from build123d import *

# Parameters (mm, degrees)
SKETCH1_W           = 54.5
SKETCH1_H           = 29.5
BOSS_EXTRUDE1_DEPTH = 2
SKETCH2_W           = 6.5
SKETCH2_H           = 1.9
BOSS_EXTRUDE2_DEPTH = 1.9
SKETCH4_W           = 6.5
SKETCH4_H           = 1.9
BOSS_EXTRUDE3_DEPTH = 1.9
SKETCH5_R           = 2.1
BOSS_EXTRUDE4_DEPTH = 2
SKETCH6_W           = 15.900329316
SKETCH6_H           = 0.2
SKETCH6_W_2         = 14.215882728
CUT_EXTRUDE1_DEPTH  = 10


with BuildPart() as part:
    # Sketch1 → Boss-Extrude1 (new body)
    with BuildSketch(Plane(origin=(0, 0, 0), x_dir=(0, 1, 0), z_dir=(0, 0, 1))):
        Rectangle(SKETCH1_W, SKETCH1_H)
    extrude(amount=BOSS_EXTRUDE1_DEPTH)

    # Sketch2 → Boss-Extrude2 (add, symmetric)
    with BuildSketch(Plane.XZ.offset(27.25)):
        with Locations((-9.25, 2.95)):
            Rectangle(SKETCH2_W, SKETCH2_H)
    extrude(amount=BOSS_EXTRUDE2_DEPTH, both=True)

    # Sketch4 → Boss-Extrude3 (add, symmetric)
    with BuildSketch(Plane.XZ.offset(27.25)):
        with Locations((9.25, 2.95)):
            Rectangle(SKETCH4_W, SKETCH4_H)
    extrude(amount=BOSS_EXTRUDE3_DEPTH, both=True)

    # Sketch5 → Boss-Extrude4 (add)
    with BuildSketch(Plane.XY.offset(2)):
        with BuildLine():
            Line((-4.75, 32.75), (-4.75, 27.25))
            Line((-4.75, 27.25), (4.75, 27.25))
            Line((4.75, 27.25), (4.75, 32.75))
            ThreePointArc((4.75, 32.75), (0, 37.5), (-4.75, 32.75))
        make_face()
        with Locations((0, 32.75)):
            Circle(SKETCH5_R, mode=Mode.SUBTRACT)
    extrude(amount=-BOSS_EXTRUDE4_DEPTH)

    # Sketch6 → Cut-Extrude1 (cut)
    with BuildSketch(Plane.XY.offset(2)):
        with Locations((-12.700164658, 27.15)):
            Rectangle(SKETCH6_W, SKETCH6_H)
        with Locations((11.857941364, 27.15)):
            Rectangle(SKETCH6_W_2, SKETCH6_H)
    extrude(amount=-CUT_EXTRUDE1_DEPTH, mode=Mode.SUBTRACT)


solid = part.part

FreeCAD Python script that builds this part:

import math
import FreeCAD as App
import Part
import Sketcher
Q = App.Units.Quantity

doc = App.newDocument("Part")
body = doc.addObject("PartDesign::Body", "Body")

# Sketch on XY plane
sketch1 = doc.addObject("Sketcher::SketchObject", "Sketch")
body.addObject(sketch1)
sketch1.AttachmentSupport = (doc.XY_Plane, [""])
sketch1.MapMode = "FlatFace"
sketch1.addGeometry([
    Part.LineSegment(App.Vector(-14.75, -27.25, 0), App.Vector(14.75, -27.25, 0)),
    Part.LineSegment(App.Vector(14.75, -27.25, 0), App.Vector(14.75, 27.25, 0)),
    Part.LineSegment(App.Vector(14.75, 27.25, 0), App.Vector(-14.75, 27.25, 0)),
    Part.LineSegment(App.Vector(-14.75, 27.25, 0), App.Vector(-14.75, -27.25, 0)),
], False)
sketch1.addConstraint([
    Sketcher.Constraint("Coincident", 0, 2, 1, 1),
    Sketcher.Constraint("Coincident", 1, 2, 2, 1),
    Sketcher.Constraint("Coincident", 2, 2, 3, 1),
    Sketcher.Constraint("Coincident", 3, 2, 0, 1),
    Sketcher.Constraint("Horizontal", 0),
    Sketcher.Constraint("Vertical", 1),
    Sketcher.Constraint("Horizontal", 2),
    Sketcher.Constraint("Vertical", 3),
    Sketcher.Constraint("Symmetric", 0, 2, 2, 2, -1, 1),
    Sketcher.Constraint("DistanceX", 0, 1, 0, 2, Q("29.5 mm")),
    Sketcher.Constraint("DistanceY", 1, 1, 1, 2, Q("54.5 mm")),
])
pad1 = doc.addObject("PartDesign::Pad", "Pad")
body.addObject(pad1)
pad1.Profile = sketch1
pad1.Length = 2

# Sketch on XZ plane
sketch2 = doc.addObject("Sketcher::SketchObject", "Sketch001")
body.addObject(sketch2)
sketch2.AttachmentSupport = (doc.XZ_Plane, [""])
sketch2.MapMode = "FlatFace"
sketch2.AttachmentOffset = App.Placement(App.Vector(0, 0, 27.25), App.Rotation())
sketch2.addGeometry([
    Part.LineSegment(App.Vector(-12.5, 3.9, 0), App.Vector(-12.5, 2, 0)),
    Part.LineSegment(App.Vector(-12.5, 2, 0), App.Vector(-6, 2, 0)),
    Part.LineSegment(App.Vector(-6, 2, 0), App.Vector(-6, 3.9, 0)),
    Part.LineSegment(App.Vector(-6, 3.9, 0), App.Vector(-12.5, 3.9, 0)),
], False)
sketch2.addConstraint([
    Sketcher.Constraint("Coincident", 0, 2, 1, 1),
    Sketcher.Constraint("Coincident", 1, 2, 2, 1),
    Sketcher.Constraint("Coincident", 2, 2, 3, 1),
    Sketcher.Constraint("Coincident", 3, 2, 0, 1),
    Sketcher.Constraint("Vertical", 0),
    Sketcher.Constraint("Horizontal", 1),
    Sketcher.Constraint("Vertical", 2),
    Sketcher.Constraint("Horizontal", 3),
    Sketcher.Constraint("DistanceX", 1, 1, 1, 2, Q("6.5 mm")),
    Sketcher.Constraint("DistanceY", 0, 2, 0, 1, Q("1.9 mm")),
    Sketcher.Constraint("DistanceY", -1, 1, 0, 2, Q("2 mm")),
    Sketcher.Constraint("DistanceX", 1, 2, -1, 1, Q("6 mm")),
])
pad2 = doc.addObject("PartDesign::Pad", "Pad001")
body.addObject(pad2)
pad2.Profile = sketch2
pad2.Length = 3.8
pad2.Midplane = True

# Sketch on XZ plane
sketch3 = doc.addObject("Sketcher::SketchObject", "Sketch002")
body.addObject(sketch3)
sketch3.AttachmentSupport = (doc.XZ_Plane, [""])
sketch3.MapMode = "FlatFace"
sketch3.AttachmentOffset = App.Placement(App.Vector(0, 0, 27.25), App.Rotation())
sketch3.addGeometry([
    Part.LineSegment(App.Vector(6, 3.9, 0), App.Vector(6, 2, 0)),
    Part.LineSegment(App.Vector(6, 2, 0), App.Vector(12.5, 2, 0)),
    Part.LineSegment(App.Vector(12.5, 2, 0), App.Vector(12.5, 3.9, 0)),
    Part.LineSegment(App.Vector(12.5, 3.9, 0), App.Vector(6, 3.9, 0)),
], False)
sketch3.addConstraint([
    Sketcher.Constraint("Coincident", 0, 2, 1, 1),
    Sketcher.Constraint("Coincident", 1, 2, 2, 1),
    Sketcher.Constraint("Coincident", 2, 2, 3, 1),
    Sketcher.Constraint("Coincident", 3, 2, 0, 1),
    Sketcher.Constraint("Vertical", 0),
    Sketcher.Constraint("Horizontal", 1),
    Sketcher.Constraint("Vertical", 2),
    Sketcher.Constraint("Horizontal", 3),
    Sketcher.Constraint("DistanceX", 1, 1, 1, 2, Q("6.5 mm")),
    Sketcher.Constraint("DistanceY", 0, 2, 0, 1, Q("1.9 mm")),
    Sketcher.Constraint("DistanceX", -1, 1, 0, 2, Q("6 mm")),
    Sketcher.Constraint("DistanceY", -1, 1, 0, 2, Q("2 mm")),
])
pad3 = doc.addObject("PartDesign::Pad", "Pad002")
body.addObject(pad3)
pad3.Profile = sketch3
pad3.Length = 3.8
pad3.Midplane = True

# Sketch on XY plane
sketch4 = doc.addObject("Sketcher::SketchObject", "Sketch003")
body.addObject(sketch4)
sketch4.AttachmentSupport = (doc.XY_Plane, [""])
sketch4.MapMode = "FlatFace"
sketch4.AttachmentOffset = App.Placement(App.Vector(0, 0, 2), App.Rotation())
sketch4.addGeometry([
    Part.LineSegment(App.Vector(-4.75, 32.75, 0), App.Vector(-4.75, 27.25, 0)),  # 0
    Part.LineSegment(App.Vector(-4.75, 27.25, 0), App.Vector(4.75, 27.25, 0)),  # 1
    Part.LineSegment(App.Vector(4.75, 27.25, 0), App.Vector(4.75, 32.75, 0)),  # 2
    Part.ArcOfCircle(Part.Circle(App.Vector(0, 32.75, 0), App.Vector(0, 0, 1), 4.75), math.radians(0), math.radians(180)),  # 3
    Part.Circle(App.Vector(0, 32.75, 0), App.Vector(0, 0, 1), 2.1),  # 4
], False)
sketch4.addConstraint([
    Sketcher.Constraint("Coincident", 0, 2, 1, 1),
    Sketcher.Constraint("Coincident", 1, 2, 2, 1),
    Sketcher.Constraint("Tangent", 2, 2, 3, 1),
    Sketcher.Constraint("Tangent", 3, 2, 0, 1),
    Sketcher.Constraint("Vertical", 0),
    Sketcher.Constraint("Horizontal", 1),
    Sketcher.Constraint("Vertical", 2),
    Sketcher.Constraint("Coincident", 4, 3, 3, 3),
    Sketcher.Constraint("PointOnObject", 3, 3, -2),
    Sketcher.Constraint("Diameter", 4, Q("4.2 mm")),
    Sketcher.Constraint("Radius", 3, Q("4.75 mm")),
    Sketcher.Constraint("DistanceY", 0, 2, 0, 1, Q("5.5 mm")),
    Sketcher.Constraint("DistanceY", -1, 1, 3, 3, Q("32.75 mm")),
])
pad4 = doc.addObject("PartDesign::Pad", "Pad003")
body.addObject(pad4)
pad4.Profile = sketch4
pad4.Length = 2
pad4.Reversed = True

# Sketch on XY plane
sketch5 = doc.addObject("Sketcher::SketchObject", "Sketch004")
body.addObject(sketch5)
sketch5.AttachmentSupport = (doc.XY_Plane, [""])
sketch5.MapMode = "FlatFace"
sketch5.AttachmentOffset = App.Placement(App.Vector(0, 0, 2), App.Rotation())
sketch5.addGeometry([
    Part.LineSegment(App.Vector(-20.650329, 27.25, 0), App.Vector(-20.650329, 27.05, 0)),  # 0
    Part.LineSegment(App.Vector(-20.650329, 27.05, 0), App.Vector(-4.75, 27.05, 0)),  # 1
    Part.LineSegment(App.Vector(-4.75, 27.05, 0), App.Vector(-4.75, 27.25, 0)),  # 2
    Part.LineSegment(App.Vector(-4.75, 27.25, 0), App.Vector(-20.650329, 27.25, 0)),  # 3
    Part.LineSegment(App.Vector(4.75, 27.25, 0), App.Vector(4.75, 27.05, 0)),  # 4
    Part.LineSegment(App.Vector(4.75, 27.05, 0), App.Vector(18.965883, 27.05, 0)),  # 5
    Part.LineSegment(App.Vector(18.965883, 27.05, 0), App.Vector(18.965883, 27.25, 0)),  # 6
    Part.LineSegment(App.Vector(18.965883, 27.25, 0), App.Vector(4.75, 27.25, 0)),  # 7
], False)
sketch5.addConstraint([
    Sketcher.Constraint("Coincident", 0, 2, 1, 1),
    Sketcher.Constraint("Coincident", 1, 2, 2, 1),
    Sketcher.Constraint("Coincident", 2, 2, 3, 1),
    Sketcher.Constraint("Coincident", 3, 2, 0, 1),
    Sketcher.Constraint("Coincident", 4, 2, 5, 1),
    Sketcher.Constraint("Coincident", 5, 2, 6, 1),
    Sketcher.Constraint("Coincident", 6, 2, 7, 1),
    Sketcher.Constraint("Coincident", 7, 2, 4, 1),
    Sketcher.Constraint("Vertical", 0),
    Sketcher.Constraint("Horizontal", 1),
    Sketcher.Constraint("Vertical", 2),
    Sketcher.Constraint("Horizontal", 3),
    Sketcher.Constraint("Vertical", 4),
    Sketcher.Constraint("Horizontal", 5),
    Sketcher.Constraint("Vertical", 6),
    Sketcher.Constraint("Horizontal", 7),
    Sketcher.Constraint("Symmetric", 1, 2, 4, 2, -2),
    Sketcher.Constraint("Horizontal", 3, 2, 6, 2),
    Sketcher.Constraint("DistanceY", 0, 2, 0, 1, Q("0.2 mm")),
    Sketcher.Constraint("DistanceX", 1, 2, 4, 2, Q("9.5 mm")),
    Sketcher.Constraint("DistanceY", -1, 1, 0, 2, Q("27.05 mm")),
    Sketcher.Constraint("DistanceX", 1, 1, 1, 2, Q("15.900329 mm")),
    Sketcher.Constraint("DistanceX", 5, 1, 5, 2, Q("14.215883 mm")),
])
pocket1 = doc.addObject("PartDesign::Pocket", "Pocket")
body.addObject(pocket1)
pocket1.Profile = sketch5
pocket1.Length = 10

doc.recompute()
